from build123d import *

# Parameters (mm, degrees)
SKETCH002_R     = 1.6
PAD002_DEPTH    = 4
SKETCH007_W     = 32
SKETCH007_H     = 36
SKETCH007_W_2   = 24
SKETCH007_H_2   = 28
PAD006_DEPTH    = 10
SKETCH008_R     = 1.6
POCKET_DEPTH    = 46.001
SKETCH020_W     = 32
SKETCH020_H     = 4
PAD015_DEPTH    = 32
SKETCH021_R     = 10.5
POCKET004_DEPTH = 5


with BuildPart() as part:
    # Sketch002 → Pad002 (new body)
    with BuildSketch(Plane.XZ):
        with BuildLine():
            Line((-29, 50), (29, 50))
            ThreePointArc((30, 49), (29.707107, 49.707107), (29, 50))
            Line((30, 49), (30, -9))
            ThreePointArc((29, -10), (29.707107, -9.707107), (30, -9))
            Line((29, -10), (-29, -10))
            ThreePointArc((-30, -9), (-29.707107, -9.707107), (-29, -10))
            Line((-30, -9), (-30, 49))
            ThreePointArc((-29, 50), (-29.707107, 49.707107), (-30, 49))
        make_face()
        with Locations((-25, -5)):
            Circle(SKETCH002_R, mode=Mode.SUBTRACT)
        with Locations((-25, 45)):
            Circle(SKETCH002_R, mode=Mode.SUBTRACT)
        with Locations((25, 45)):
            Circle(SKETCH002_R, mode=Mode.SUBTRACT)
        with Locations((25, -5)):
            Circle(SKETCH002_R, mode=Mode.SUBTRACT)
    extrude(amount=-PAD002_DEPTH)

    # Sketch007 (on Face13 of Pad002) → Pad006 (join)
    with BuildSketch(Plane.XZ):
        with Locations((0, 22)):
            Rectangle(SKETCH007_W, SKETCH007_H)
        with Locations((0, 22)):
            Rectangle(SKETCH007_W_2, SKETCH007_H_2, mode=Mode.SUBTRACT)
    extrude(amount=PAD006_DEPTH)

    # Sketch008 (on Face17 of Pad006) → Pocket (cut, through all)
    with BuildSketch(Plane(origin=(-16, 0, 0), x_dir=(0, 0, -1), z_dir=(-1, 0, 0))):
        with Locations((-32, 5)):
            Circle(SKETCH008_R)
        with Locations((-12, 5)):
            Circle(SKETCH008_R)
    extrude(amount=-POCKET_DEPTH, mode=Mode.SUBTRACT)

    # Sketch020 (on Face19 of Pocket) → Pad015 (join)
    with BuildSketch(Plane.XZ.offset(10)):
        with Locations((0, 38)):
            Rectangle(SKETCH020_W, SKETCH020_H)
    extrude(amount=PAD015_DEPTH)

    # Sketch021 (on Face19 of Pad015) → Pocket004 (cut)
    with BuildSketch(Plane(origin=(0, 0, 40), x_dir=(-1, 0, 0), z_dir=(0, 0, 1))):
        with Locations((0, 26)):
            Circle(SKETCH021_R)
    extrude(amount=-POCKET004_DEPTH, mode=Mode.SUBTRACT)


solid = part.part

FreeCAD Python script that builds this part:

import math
import FreeCAD as App
import Part
import Sketcher
from FreeCAD import Vector


def add_polygon(sketch, points):
    """Adds a closed chain of lines whose ends are joined by coincident constraints."""
    first, n = sketch.GeometryCount, len(points)
    for a, b in zip(points, points[1:] + points[:1]):
        sketch.addGeometry(Part.LineSegment(App.Vector(*a, 0), App.Vector(*b, 0)), False)
    for i in range(n):
        sketch.addConstraint(Sketcher.Constraint("Coincident", first + i, 2, first + (i + 1) % n, 1))

doc = App.newDocument("Part")
body = doc.addObject("PartDesign::Body", "Body")

# Sketch on XZ plane
sketch1 = body.newObject("Sketcher::SketchObject", "Sketch")
sketch1.AttachmentSupport = (doc.getObject("XZ_Plane"), [""])
sketch1.MapMode = "FlatFace"
sketch1.addGeometry([
    Part.LineSegment(Vector(29, 50, 0), Vector(-29, 50, 0)),  # 0
    Part.ArcOfCircle(Part.Circle(Vector(-29, 49, 0), Vector(0, 0, 1), 1), math.radians(90), math.radians(180)),  # 1
    Part.LineSegment(Vector(-30, 49, 0), Vector(-30, -9, 0)),  # 2
    Part.ArcOfCircle(Part.Circle(Vector(-29, -9, 0), Vector(0, 0, 1), 1), math.radians(180), math.radians(270)),  # 3
    Part.LineSegment(Vector(-29, -10, 0), Vector(29, -10, 0)),  # 4
    Part.ArcOfCircle(Part.Circle(Vector(29, -9, 0), Vector(0, 0, 1), 1), math.radians(-90), math.radians(0)),  # 5
    Part.LineSegment(Vector(30, -9, 0), Vector(30, 49, 0)),  # 6
    Part.ArcOfCircle(Part.Circle(Vector(29, 49, 0), Vector(0, 0, 1), 1), math.radians(0), math.radians(90)),  # 7
    Part.Circle(Vector(25, -5, 0), Vector(0, 0, 1), 1.6),  # 8
    Part.Circle(Vector(-25, -5, 0), Vector(0, 0, 1), 1.6),  # 9
    Part.Circle(Vector(25, 45, 0), Vector(0, 0, 1), 1.6),  # 10
    Part.Circle(Vector(-25, 45, 0), Vector(0, 0, 1), 1.6),  # 11
], False)
sketch1.addConstraint([
    Sketcher.Constraint("Tangent", 0, 2, 1, 1),
    Sketcher.Constraint("Tangent", 1, 2, 2, 1),
    Sketcher.Constraint("Tangent", 2, 2, 3, 1),
    Sketcher.Constraint("Tangent", 3, 2, 4, 1),
    Sketcher.Constraint("Tangent", 4, 2, 5, 1),
    Sketcher.Constraint("Tangent", 5, 2, 6, 1),
    Sketcher.Constraint("Tangent", 6, 2, 7, 1),
    Sketcher.Constraint("Tangent", 7, 2, 0, 1),
    Sketcher.Constraint("Horizontal", 0),
    Sketcher.Constraint("Vertical", 2),
    Sketcher.Constraint("Horizontal", 4),
    Sketcher.Constraint("Vertical", 6),
    Sketcher.Constraint("Equal", 1, 3),
    Sketcher.Constraint("Equal", 3, 5),
    Sketcher.Constraint("Equal", 5, 7),
    Sketcher.Constraint("Equal", 8, 9),
    Sketcher.Constraint("Equal", 9, 10),
    Sketcher.Constraint("Equal", 10, 11),
    Sketcher.Constraint("Symmetric", 8, 3, 9, 3, -2),
    Sketcher.Constraint("Symmetric", 10, 3, 11, 3, -2),
    Sketcher.Constraint("Vertical", 8, 3, 10, 3),
    Sketcher.Constraint("Equal", 4, 2),
    Sketcher.Constraint("Radius", 1, 0.999999),
    Sketcher.Constraint("Diameter", 8, 3.2),
    Sketcher.Constraint("DistanceX", 0, 2, 0, 1, 58.0),
    Sketcher.Constraint("DistanceX", 1, 3, -1, 1, 29.000001),
    Sketcher.Constraint("DistanceY", -1, 1, 1, 3, 49.000001),
    Sketcher.Constraint("DistanceX", -1, 1, 8, 3, 25.0),
    Sketcher.Constraint("DistanceY", 8, 3, -1, 1, 5.0),
    Sketcher.Constraint("DistanceY", -1, 1, 10, 3, 45.0),
])
pad1 = body.newObject("PartDesign::Pad", "Pad")
pad1.Profile = sketch1
pad1.Length = 4
pad1.Reversed = True

# Sketch on XZ plane
sketch2 = body.newObject("Sketcher::SketchObject", "Sketch001")
sketch2.AttachmentSupport = (doc.getObject("XZ_Plane"), [""])
sketch2.MapMode = "FlatFace"
add_polygon(sketch2, [(-16, 40), (-16, 4), (16, 4), (16, 40)])  # lines 0-3
add_polygon(sketch2, [(12, 8), (-12, 8), (-12, 36), (12, 36)])  # lines 4-7
sketch2.addConstraint([
    Sketcher.Constraint("Vertical", 0),
    Sketcher.Constraint("Horizontal", 1),
    Sketcher.Constraint("Vertical", 2),
    Sketcher.Constraint("Horizontal", 3),
    Sketcher.Constraint("Horizontal", 4),
    Sketcher.Constraint("Vertical", 5),
    Sketcher.Constraint("Horizontal", 6),
    Sketcher.Constraint("Vertical", 7),
    Sketcher.Constraint("DistanceX", 1, 1, 1, 2, 32.0),
    Sketcher.Constraint("DistanceX", 4, 2, 4, 1, 24.0),
    Sketcher.Constraint("DistanceY", 0, 2, 0, 1, 36.0),
    Sketcher.Constraint("DistanceY", 5, 1, 5, 2, 28.0),
    Sketcher.Constraint("DistanceX", 0, 2, -1, 1, 16.0),
    Sketcher.Constraint("DistanceY", -1, 1, 0, 2, 4.0),
    Sketcher.Constraint("DistanceX", 4, 2, -1, 1, 12.0),
    Sketcher.Constraint("DistanceY", -1, 1, 4, 2, 8.0),
])
pad2 = body.newObject("PartDesign::Pad", "Pad001")
pad2.Profile = sketch2
pad2.Length = 10

# Sketch on YZ plane
sketch3 = body.newObject("Sketcher::SketchObject", "Sketch002")
sketch3.AttachmentSupport = (doc.getObject("YZ_Plane"), [""])
sketch3.MapMode = "FlatFace"
sketch3.AttachmentOffset = App.Placement(Vector(0, 0, -16), App.Rotation())
sketch3.addGeometry([
    Part.Circle(Vector(-5, 32, 0), Vector(0, 0, 1), 1.6),
    Part.Circle(Vector(-5, 12, 0), Vector(0, 0, 1), 1.6),
], False)
sketch3.addConstraint([
    Sketcher.Constraint("Equal", 0, 1),
    Sketcher.Constraint("Vertical", 0, 3, 1, 3),
    Sketcher.Constraint("Diameter", 0, 3.2),
    Sketcher.Constraint("DistanceX", 0, 3, -1, 1, 5.0),
    Sketcher.Constraint("DistanceY", -1, 1, 0, 3, 32.0),
    Sketcher.Constraint("DistanceY", -1, 1, 1, 3, 12.0),
])
pocket1 = body.newObject("PartDesign::Pocket", "Pocket")
pocket1.Profile = sketch3
pocket1.Type = "ThroughAll"
pocket1.Reversed = True

# Sketch on XZ plane
sketch4 = body.newObject("Sketcher::SketchObject", "Sketch003")
sketch4.AttachmentSupport = (doc.getObject("XZ_Plane"), [""])
sketch4.MapMode = "FlatFace"
sketch4.AttachmentOffset = App.Placement(Vector(0, 0, 10), App.Rotation())
add_polygon(sketch4, [(-16, 40), (-16, 36), (16, 36), (16, 40)])  # lines 0-3
sketch4.addConstraint([
    Sketcher.Constraint("Vertical", 0),
    Sketcher.Constraint("Horizontal", 1),
    Sketcher.Constraint("Vertical", 2),
    Sketcher.Constraint("Horizontal", 3),
    Sketcher.Constraint("DistanceX", 1, 1, 1, 2, 32.0),
    Sketcher.Constraint("DistanceY", 0, 2, 0, 1, 4.0),
    Sketcher.Constraint("DistanceX", 0, 2, -1, 1, 16.0),
    Sketcher.Constraint("DistanceY", -1, 1, 0, 2, 36.0),
])
pad3 = body.newObject("PartDesign::Pad", "Pad002")
pad3.Profile = sketch4
pad3.Length = 32

# Sketch on XY plane
sketch5 = body.newObject("Sketcher::SketchObject", "Sketch004")
sketch5.AttachmentSupport = (doc.getObject("XY_Plane"), [""])
sketch5.MapMode = "FlatFace"
sketch5.AttachmentOffset = App.Placement(Vector(0, 0, 40), App.Rotation())
sketch5.addGeometry(Part.Circle(Vector(0, -26, 0), Vector(0, 0, 1), 10), False)
sketch5.addConstraint([
    Sketcher.Constraint("PointOnObject", 0, 3, -2),
    Sketcher.Constraint("Diameter", 0, 21.0),
    Sketcher.Constraint("DistanceY", 0, 3, -1, 1, 26.0),
])
pocket2 = body.newObject("PartDesign::Pocket", "Pocket001")
pocket2.Profile = sketch5
pocket2.Length = 5

doc.recompute()
